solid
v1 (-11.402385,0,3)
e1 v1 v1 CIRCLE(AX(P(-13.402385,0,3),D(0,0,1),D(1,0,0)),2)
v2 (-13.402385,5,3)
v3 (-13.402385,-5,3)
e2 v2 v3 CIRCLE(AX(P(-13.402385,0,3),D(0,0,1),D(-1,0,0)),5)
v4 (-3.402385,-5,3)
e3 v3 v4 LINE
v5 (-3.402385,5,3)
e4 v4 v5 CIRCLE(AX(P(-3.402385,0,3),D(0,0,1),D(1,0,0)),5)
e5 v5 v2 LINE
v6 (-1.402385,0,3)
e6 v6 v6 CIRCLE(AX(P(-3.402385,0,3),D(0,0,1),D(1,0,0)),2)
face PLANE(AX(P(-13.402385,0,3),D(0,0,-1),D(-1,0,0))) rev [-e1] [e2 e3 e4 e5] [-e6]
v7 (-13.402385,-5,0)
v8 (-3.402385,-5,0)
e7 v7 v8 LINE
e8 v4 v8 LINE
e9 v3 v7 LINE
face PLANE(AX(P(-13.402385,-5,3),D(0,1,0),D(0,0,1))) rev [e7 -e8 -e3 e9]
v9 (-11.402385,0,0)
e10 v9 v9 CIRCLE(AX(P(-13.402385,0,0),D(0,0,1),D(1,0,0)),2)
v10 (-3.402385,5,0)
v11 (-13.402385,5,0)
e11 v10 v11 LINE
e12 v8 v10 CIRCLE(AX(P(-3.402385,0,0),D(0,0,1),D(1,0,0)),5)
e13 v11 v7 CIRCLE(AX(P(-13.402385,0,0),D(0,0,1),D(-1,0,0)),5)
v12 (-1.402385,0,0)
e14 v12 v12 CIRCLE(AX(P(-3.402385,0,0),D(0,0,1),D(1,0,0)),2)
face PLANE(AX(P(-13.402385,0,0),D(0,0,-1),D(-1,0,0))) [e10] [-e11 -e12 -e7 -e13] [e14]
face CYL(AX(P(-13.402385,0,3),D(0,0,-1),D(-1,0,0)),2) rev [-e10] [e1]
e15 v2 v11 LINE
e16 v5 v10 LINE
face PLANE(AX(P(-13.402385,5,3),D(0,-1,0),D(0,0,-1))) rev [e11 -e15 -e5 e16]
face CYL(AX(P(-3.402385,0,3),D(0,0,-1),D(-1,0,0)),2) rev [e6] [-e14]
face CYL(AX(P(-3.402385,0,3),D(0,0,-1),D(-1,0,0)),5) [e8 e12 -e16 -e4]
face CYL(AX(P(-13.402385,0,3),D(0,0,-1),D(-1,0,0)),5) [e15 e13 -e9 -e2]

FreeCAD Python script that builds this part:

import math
import FreeCAD as App
import Part
import Sketcher

V = App.Vector
Q = App.Units.Quantity

doc = App.newDocument("Part")
body = doc.addObject("PartDesign::Body", "Body")

# Sketch on XY plane
sketch1 = doc.addObject("Sketcher::SketchObject", "Sketch")
body.addObject(sketch1)
sketch1.AttachmentSupport = (doc.XY_Plane, [""])
sketch1.MapMode = "FlatFace"
sketch1.addGeometry(Part.LineSegment(V(-13.4, -5, 0), V(-3.4, -5, 0)), False)
sketch1.addGeometry(Part.ArcOfCircle(Part.Circle(V(-3.4, 0, 0), V(0, 0, 1), 5), math.radians(-90), math.radians(90)), False)
sketch1.addGeometry(Part.LineSegment(V(-3.4, 5, 0), V(-13.4, 5, 0)), False)
sketch1.addGeometry(Part.ArcOfCircle(Part.Circle(V(-13.4, 0, 0), V(0, 0, 1), 5), math.radians(90), math.radians(270)), False)
sketch1.addGeometry(Part.Circle(V(-13.4, 0, 0), V(0, 0, 1), 2), False)
sketch1.addGeometry(Part.Circle(V(-3.4, 0, 0), V(0, 0, 1), 2), False)
sketch1.addConstraint(Sketcher.Constraint("Tangent", 0, 2, 1, 1))
sketch1.addConstraint(Sketcher.Constraint("Tangent", 1, 2, 2, 1))
sketch1.addConstraint(Sketcher.Constraint("Tangent", 2, 2, 3, 1))
sketch1.addConstraint(Sketcher.Constraint("Tangent", 3, 2, 0, 1))
sketch1.addConstraint(Sketcher.Constraint("Horizontal", 0))
sketch1.addConstraint(Sketcher.Constraint("Horizontal", 2))
sketch1.addConstraint(Sketcher.Constraint("Coincident", 4, 3, 3, 3))
sketch1.addConstraint(Sketcher.Constraint("Coincident", 5, 3, 1, 3))
sketch1.addConstraint(Sketcher.Constraint("Equal", 4, 5))
sketch1.addConstraint(Sketcher.Constraint("PointOnObject", 1, 3, -1))
sketch1.addConstraint(Sketcher.Constraint("Diameter", 4, Q("4 mm")))
sketch1.addConstraint(Sketcher.Constraint("Radius", 1, Q("5 mm")))
sketch1.addConstraint(Sketcher.Constraint("DistanceX", 0, 1, 0, 2, Q("10 mm")))
sketch1.addConstraint(Sketcher.Constraint("DistanceX", 1, 3, -1, 1, Q("3.402385 mm")))
pad1 = doc.addObject("PartDesign::Pad", "Pad")
body.addObject(pad1)
pad1.Profile = sketch1
pad1.Length = 3

doc.recompute()
